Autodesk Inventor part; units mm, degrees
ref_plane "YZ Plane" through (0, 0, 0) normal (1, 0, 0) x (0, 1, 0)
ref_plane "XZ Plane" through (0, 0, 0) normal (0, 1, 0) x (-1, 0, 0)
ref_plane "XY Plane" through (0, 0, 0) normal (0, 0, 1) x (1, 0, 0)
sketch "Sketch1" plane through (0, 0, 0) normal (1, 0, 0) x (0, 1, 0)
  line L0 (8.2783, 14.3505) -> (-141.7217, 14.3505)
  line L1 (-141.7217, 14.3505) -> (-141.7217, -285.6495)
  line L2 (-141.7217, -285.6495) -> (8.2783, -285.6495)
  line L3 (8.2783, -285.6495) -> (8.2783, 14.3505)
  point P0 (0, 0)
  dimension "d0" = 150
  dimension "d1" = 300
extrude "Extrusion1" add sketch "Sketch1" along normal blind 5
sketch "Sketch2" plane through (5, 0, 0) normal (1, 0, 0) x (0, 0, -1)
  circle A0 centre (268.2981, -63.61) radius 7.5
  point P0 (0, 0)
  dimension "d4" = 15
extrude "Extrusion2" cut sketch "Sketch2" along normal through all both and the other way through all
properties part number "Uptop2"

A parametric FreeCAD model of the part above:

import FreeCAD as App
import Part
import Sketcher
from FreeCAD import Vector

doc = App.newDocument("Part")
body = doc.addObject("PartDesign::Body", "Body")

# Sketch on YZ plane
sketch1 = doc.addObject("Sketcher::SketchObject", "Sketch")
body.addObject(sketch1)
sketch1.AttachmentSupport = (doc.YZ_Plane, [""])
sketch1.MapMode = "FlatFace"
sketch1.addGeometry(Part.LineSegment(Vector(8, -286, 0), Vector(8, 14, 0)), False)
sketch1.addGeometry(Part.LineSegment(Vector(8, 14, 0), Vector(-142, 14, 0)), False)
sketch1.addGeometry(Part.LineSegment(Vector(-142, 14, 0), Vector(-142, -286, 0)), False)
sketch1.addGeometry(Part.LineSegment(Vector(-142, -286, 0), Vector(8, -286, 0)), False)
sketch1.addConstraint(Sketcher.Constraint("Coincident", 0, 2, 1, 1))
sketch1.addConstraint(Sketcher.Constraint("Coincident", 1, 2, 2, 1))
sketch1.addConstraint(Sketcher.Constraint("Coincident", 2, 2, 3, 1))
sketch1.addConstraint(Sketcher.Constraint("Coincident", 3, 2, 0, 1))
sketch1.addConstraint(Sketcher.Constraint("Vertical", 0))
sketch1.addConstraint(Sketcher.Constraint("Horizontal", 1))
sketch1.addConstraint(Sketcher.Constraint("Vertical", 2))
sketch1.addConstraint(Sketcher.Constraint("Horizontal", 3))
sketch1.addConstraint(Sketcher.Constraint("DistanceX", 1, 2, 1, 1, 150.0))
sketch1.addConstraint(Sketcher.Constraint("DistanceY", 0, 1, 0, 2, 300.0))
sketch1.addConstraint(Sketcher.Constraint("DistanceX", -1, 1, 0, 2, 8.2783))
sketch1.addConstraint(Sketcher.Constraint("DistanceY", -1, 1, 0, 2, 14.3505))
pad1 = doc.addObject("PartDesign::Pad", "Pad")
body.addObject(pad1)
pad1.Profile = sketch1
pad1.Length = 5

# Sketch on YZ plane
sketch2 = doc.addObject("Sketcher::SketchObject", "Sketch001")
body.addObject(sketch2)
sketch2.AttachmentSupport = (doc.YZ_Plane, [""])
sketch2.MapMode = "FlatFace"
sketch2.AttachmentOffset = App.Placement(Vector(0, 0, 5), App.Rotation())
sketch2.addGeometry(Part.Circle(Vector(-64, -268, 0), Vector(0, 0, 1), 8), False)
sketch2.addConstraint(Sketcher.Constraint("Diameter", 0, 15.0))
sketch2.addConstraint(Sketcher.Constraint("DistanceX", 0, 3, -1, 1, 63.61))
sketch2.addConstraint(Sketcher.Constraint("DistanceY", 0, 3, -1, 1, 268.298))
pocket1 = doc.addObject("PartDesign::Pocket", "Pocket")
body.addObject(pocket1)
pocket1.Profile = sketch2
pocket1.Type = "ThroughAll"
pocket1.Midplane = True

doc.recompute()
